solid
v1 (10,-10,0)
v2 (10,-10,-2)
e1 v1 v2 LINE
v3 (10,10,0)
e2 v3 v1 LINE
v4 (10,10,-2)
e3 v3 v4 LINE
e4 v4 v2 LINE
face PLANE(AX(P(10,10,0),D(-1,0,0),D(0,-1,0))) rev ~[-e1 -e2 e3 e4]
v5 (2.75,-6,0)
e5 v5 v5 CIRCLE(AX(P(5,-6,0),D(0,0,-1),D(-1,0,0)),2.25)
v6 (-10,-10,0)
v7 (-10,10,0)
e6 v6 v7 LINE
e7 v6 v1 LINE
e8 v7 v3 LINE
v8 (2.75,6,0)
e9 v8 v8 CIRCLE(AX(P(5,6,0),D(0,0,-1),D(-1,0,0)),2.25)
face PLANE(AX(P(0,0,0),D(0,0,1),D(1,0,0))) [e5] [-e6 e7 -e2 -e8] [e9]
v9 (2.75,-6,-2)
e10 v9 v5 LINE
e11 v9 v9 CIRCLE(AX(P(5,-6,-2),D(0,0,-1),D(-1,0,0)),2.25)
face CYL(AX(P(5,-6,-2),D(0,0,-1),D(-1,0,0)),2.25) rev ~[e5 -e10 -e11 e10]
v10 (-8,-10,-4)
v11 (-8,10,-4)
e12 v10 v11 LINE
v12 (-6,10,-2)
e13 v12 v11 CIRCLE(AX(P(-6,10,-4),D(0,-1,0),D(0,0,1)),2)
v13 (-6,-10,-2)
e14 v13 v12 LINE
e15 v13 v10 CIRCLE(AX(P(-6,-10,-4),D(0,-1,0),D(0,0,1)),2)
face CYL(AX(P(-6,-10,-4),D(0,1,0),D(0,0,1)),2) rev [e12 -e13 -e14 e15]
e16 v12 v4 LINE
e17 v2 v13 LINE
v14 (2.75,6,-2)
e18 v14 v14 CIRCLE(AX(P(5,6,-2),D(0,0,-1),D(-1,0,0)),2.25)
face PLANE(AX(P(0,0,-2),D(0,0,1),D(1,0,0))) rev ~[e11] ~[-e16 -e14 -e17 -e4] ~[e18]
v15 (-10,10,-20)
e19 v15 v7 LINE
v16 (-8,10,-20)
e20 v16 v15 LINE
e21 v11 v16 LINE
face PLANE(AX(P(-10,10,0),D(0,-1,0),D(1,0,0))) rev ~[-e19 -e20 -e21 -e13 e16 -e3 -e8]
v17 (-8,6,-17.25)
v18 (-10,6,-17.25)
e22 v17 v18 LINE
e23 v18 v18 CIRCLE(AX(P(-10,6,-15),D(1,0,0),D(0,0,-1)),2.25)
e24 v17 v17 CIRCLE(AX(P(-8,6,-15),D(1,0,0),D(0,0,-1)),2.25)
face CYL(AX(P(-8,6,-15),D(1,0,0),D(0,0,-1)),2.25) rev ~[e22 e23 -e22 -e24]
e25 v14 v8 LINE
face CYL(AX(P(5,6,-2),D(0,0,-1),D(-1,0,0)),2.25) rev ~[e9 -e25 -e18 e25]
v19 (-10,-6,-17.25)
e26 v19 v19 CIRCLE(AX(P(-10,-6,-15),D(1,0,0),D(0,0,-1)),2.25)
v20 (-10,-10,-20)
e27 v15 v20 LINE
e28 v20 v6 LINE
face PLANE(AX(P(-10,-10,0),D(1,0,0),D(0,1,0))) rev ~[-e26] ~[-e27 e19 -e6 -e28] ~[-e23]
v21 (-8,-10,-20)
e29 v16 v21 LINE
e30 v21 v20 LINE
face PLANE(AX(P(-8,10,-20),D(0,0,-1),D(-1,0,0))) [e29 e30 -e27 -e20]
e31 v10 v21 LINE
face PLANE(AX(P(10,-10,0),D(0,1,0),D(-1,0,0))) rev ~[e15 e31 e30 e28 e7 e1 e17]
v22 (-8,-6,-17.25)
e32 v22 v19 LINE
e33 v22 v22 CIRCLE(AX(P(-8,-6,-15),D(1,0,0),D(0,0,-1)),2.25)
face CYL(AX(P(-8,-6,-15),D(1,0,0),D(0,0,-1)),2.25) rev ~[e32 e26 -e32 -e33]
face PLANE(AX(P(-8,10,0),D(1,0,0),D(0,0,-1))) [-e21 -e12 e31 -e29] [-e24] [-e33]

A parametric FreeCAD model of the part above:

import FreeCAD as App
import Part
import Sketcher
from FreeCAD import Vector


def edges_at(feature, points):
    """Names of the edges that pass closest to the given points."""
    edges = feature.Shape.Edges
    near = lambda p: min(range(len(edges)), key=lambda i: edges[i].distToShape(Part.Vertex(*p))[0])
    return sorted({f"Edge{near(p) + 1}" for p in points})

doc = App.newDocument("Part")
body = doc.addObject("PartDesign::Body", "Body")

# Sketch on XY plane
sketch1 = body.newObject("Sketcher::SketchObject", "Sketch")
sketch1.AttachmentSupport = (doc.getObject("XY_Plane"), [""])
sketch1.MapMode = "FlatFace"
sketch1.addGeometry([
    Part.LineSegment(Vector(10, 10, 0), Vector(-10, 10, 0)),
    Part.LineSegment(Vector(-10, 10, 0), Vector(-10, -10, 0)),
    Part.LineSegment(Vector(-10, -10, 0), Vector(10, -10, 0)),
    Part.LineSegment(Vector(10, -10, 0), Vector(10, 10, 0)),
], False)
sketch1.addConstraint([
    Sketcher.Constraint("Coincident", 0, 2, 1, 1),
    Sketcher.Constraint("Coincident", 1, 2, 2, 1),
    Sketcher.Constraint("Coincident", 2, 2, 3, 1),
    Sketcher.Constraint("Coincident", 3, 2, 0, 1),
    Sketcher.Constraint("Horizontal", 0),
    Sketcher.Constraint("Vertical", 1),
    Sketcher.Constraint("Horizontal", 2),
    Sketcher.Constraint("Vertical", 3),
    Sketcher.Constraint("Symmetric", 0, 2, 2, 2, -1, 1),
    Sketcher.Constraint("Equal", 2, 1),
    Sketcher.Constraint("DistanceX", 0, 2, 0, 1, 20.0),
])
pad1 = body.newObject("PartDesign::Pad", "Pad")
pad1.Profile = sketch1
pad1.Length = 2
pad1.Reversed = True

# Sketch on XZ plane
sketch2 = body.newObject("Sketcher::SketchObject", "Sketch001")
sketch2.AttachmentSupport = (doc.getObject("XZ_Plane"), [""])
sketch2.MapMode = "FlatFace"
sketch2.AttachmentOffset = App.Placement(Vector(0, 0, -10), App.Rotation())
sketch2.addGeometry([
    Part.LineSegment(Vector(-10, 0, 0), Vector(-8, 0, 0)),
    Part.LineSegment(Vector(-8, 0, 0), Vector(-8, -20, 0)),
    Part.LineSegment(Vector(-8, -20, 0), Vector(-10, -20, 0)),
    Part.LineSegment(Vector(-10, -20, 0), Vector(-10, 0, 0)),
], False)
sketch2.addConstraint([
    Sketcher.Constraint("Coincident", 0, 2, 1, 1),
    Sketcher.Constraint("Coincident", 1, 2, 2, 1),
    Sketcher.Constraint("Coincident", 2, 2, 3, 1),
    Sketcher.Constraint("Coincident", 3, 2, 0, 1),
    Sketcher.Constraint("Horizontal", 0),
    Sketcher.Constraint("Vertical", 1),
    Sketcher.Constraint("Horizontal", 2),
    Sketcher.Constraint("Vertical", 3),
    Sketcher.Constraint("PointOnObject", 0, 2, -1),
    Sketcher.Constraint("DistanceX", 0, 1, 0, 2, 2.0),
    Sketcher.Constraint("DistanceY", 1, 2, 1, 1, 20.0),
    Sketcher.Constraint("DistanceX", 0, 2, -1, 1, 8.0),
])
pad2 = body.newObject("PartDesign::Pad", "Pad001")
pad2.Profile = sketch2
pad2.Length = 20
doc.recompute()

fillet = body.newObject("PartDesign::Fillet", "Fillet")
fillet.Base = (pad2, edges_at(pad2, [(-8, 0, -2)]))
fillet.Radius = 2

# Sketch on XY plane
sketch3 = body.newObject("Sketcher::SketchObject", "Sketch002")
sketch3.AttachmentSupport = (doc.getObject("XY_Plane"), [""])
sketch3.MapMode = "FlatFace"
sketch3.AttachmentOffset = App.Placement(Vector(0, 0, -2), App.Rotation())
sketch3.addGeometry([
    Part.Circle(Vector(5, -6, 0), Vector(0, 0, 1), 2.25),
    Part.Circle(Vector(5, 6, 0), Vector(0, 0, 1), 2.25),
], False)
sketch3.addConstraint([
    Sketcher.Constraint("Equal", 0, 1),
    Sketcher.Constraint("Symmetric", 0, 3, 1, 3, -1),
    Sketcher.Constraint("Diameter", 0, 4.5),
    Sketcher.Constraint("DistanceX", -1, 1, 0, 3, 5.0),
    Sketcher.Constraint("DistanceY", 0, 3, 1, 3, 12.0),
])
pocket1 = body.newObject("PartDesign::Pocket", "Pocket")
pocket1.Profile = sketch3
pocket1.Length = 2
pocket1.Reversed = True

# Sketch on YZ plane
sketch4 = body.newObject("Sketcher::SketchObject", "Sketch003")
sketch4.AttachmentSupport = (doc.getObject("YZ_Plane"), [""])
sketch4.MapMode = "FlatFace"
sketch4.AttachmentOffset = App.Placement(Vector(0, 0, -8), App.Rotation())
sketch4.addGeometry([
    Part.Circle(Vector(-6, -15, 0), Vector(0, 0, 1), 2.25),
    Part.Circle(Vector(6, -15, 0), Vector(0, 0, 1), 2.25),
], False)
sketch4.addConstraint([
    Sketcher.Constraint("Equal", 0, 1),
    Sketcher.Constraint("Symmetric", 0, 3, 1, 3, -2),
    Sketcher.Constraint("Diameter", 0, 4.5),
    Sketcher.Constraint("DistanceX", 0, 3, -1, 1, 6.0),
    Sketcher.Constraint("DistanceY", 0, 3, -1, 1, 15.0),
])
pocket2 = body.newObject("PartDesign::Pocket", "Pocket001")
pocket2.Profile = sketch4
pocket2.Length = 2

doc.recompute()
